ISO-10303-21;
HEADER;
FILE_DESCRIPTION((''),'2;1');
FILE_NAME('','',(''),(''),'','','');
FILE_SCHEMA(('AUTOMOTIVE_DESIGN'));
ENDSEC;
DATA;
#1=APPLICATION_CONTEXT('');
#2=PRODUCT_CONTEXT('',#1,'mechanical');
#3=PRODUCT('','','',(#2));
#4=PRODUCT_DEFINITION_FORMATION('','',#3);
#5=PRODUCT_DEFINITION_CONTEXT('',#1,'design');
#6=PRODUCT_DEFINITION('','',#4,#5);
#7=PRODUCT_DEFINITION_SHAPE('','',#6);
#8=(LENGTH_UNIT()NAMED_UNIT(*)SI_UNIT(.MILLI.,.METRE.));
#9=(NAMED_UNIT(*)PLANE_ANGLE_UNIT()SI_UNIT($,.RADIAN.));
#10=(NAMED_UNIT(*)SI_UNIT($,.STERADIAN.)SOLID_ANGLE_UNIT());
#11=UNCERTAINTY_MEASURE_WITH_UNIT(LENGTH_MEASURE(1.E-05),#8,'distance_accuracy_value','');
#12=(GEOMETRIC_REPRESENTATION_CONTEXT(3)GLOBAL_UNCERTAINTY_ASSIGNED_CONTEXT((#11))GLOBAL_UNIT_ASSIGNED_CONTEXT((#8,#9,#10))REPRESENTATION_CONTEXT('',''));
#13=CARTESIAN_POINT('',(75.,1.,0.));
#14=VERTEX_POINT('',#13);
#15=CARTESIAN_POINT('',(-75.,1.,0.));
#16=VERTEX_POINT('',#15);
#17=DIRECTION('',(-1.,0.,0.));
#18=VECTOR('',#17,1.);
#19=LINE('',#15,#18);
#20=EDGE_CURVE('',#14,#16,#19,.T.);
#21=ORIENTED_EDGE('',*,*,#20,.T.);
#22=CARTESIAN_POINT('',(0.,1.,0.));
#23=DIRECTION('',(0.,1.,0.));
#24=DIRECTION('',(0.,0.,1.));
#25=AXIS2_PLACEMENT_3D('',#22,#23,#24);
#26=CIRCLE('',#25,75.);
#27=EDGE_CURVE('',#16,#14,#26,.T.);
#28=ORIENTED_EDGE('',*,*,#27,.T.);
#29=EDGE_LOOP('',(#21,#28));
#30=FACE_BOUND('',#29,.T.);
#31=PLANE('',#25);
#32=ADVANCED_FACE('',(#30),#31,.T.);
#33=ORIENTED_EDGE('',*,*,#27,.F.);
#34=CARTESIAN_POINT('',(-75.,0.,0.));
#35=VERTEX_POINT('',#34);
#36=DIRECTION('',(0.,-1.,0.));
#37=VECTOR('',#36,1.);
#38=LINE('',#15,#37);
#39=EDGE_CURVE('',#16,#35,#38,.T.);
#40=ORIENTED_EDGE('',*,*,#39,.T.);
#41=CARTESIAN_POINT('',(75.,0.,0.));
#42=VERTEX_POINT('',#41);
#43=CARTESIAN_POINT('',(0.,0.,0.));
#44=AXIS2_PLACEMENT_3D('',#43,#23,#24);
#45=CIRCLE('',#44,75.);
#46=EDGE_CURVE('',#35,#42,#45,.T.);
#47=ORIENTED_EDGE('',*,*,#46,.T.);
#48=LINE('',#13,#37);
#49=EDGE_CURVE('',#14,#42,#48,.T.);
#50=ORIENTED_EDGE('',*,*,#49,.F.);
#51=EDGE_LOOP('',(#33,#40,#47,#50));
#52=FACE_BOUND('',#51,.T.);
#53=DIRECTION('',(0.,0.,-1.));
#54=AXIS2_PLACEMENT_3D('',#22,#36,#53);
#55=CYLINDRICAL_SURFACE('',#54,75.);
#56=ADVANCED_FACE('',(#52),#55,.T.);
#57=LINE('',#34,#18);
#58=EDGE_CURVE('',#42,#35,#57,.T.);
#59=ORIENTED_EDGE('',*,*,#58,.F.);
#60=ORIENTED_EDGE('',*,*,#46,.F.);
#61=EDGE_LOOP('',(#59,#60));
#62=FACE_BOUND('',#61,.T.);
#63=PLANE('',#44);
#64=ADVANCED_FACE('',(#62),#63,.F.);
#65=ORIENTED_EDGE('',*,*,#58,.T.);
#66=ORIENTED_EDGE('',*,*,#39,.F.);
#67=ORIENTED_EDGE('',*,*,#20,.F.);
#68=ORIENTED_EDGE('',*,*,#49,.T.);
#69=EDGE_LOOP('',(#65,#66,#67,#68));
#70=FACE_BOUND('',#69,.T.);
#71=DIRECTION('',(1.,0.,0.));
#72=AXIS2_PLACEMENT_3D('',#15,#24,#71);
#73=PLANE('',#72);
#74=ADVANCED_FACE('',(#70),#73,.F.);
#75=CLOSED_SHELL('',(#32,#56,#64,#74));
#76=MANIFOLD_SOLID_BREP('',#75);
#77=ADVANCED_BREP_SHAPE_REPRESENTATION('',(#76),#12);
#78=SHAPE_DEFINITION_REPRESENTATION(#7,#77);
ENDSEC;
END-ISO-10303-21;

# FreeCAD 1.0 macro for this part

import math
import FreeCAD as App
import Part
import Sketcher
Q = App.Units.Quantity

doc = App.newDocument("Part")
params = doc.addObject("Spreadsheet::Sheet", "Params")
for row, (alias, value) in enumerate([
    ("sketch1_radius", "75 mm"),
    ("pad1_length", "1 mm"),
], start=1):
    params.set(f"A{row}", alias)
    params.set(f"B{row}", "=" + value)
    params.setAlias(f"B{row}", alias)

body = doc.addObject("PartDesign::Body", "Body")

# Sketch on XZ plane
sketch1 = body.newObject("Sketcher::SketchObject", "Sketch")
sketch1.AttachmentSupport = (doc.getObject("XZ_Plane"), [""])
sketch1.MapMode = "FlatFace"
sketch1.addGeometry([
    Part.LineSegment(App.Vector(75, 0, 0), App.Vector(-75, 0, 0)),
    Part.ArcOfCircle(Part.Circle(App.Vector(0, 0, 0), App.Vector(0, 0, 1), 75), math.radians(0), math.radians(180)),
], False)
sketch1.addConstraint([
    Sketcher.Constraint("Coincident", 0, 1, 1, 1),
    Sketcher.Constraint("Coincident", 1, 2, 0, 2),
    Sketcher.Constraint("Horizontal", 0),
    Sketcher.Constraint("Coincident", 1, 3, -1, 1),
    Sketcher.Constraint("PointOnObject", 0, 1, -1),
    Sketcher.Constraint("Radius", 1, Q("75 mm")),
])
sketch1.setExpression("Constraints[5]", "Params.sketch1_radius")
pad1 = body.newObject("PartDesign::Pad", "Pad")
pad1.Profile = sketch1
pad1.setExpression("Length", "Params.pad1_length")
pad1.Reversed = True

doc.recompute()
